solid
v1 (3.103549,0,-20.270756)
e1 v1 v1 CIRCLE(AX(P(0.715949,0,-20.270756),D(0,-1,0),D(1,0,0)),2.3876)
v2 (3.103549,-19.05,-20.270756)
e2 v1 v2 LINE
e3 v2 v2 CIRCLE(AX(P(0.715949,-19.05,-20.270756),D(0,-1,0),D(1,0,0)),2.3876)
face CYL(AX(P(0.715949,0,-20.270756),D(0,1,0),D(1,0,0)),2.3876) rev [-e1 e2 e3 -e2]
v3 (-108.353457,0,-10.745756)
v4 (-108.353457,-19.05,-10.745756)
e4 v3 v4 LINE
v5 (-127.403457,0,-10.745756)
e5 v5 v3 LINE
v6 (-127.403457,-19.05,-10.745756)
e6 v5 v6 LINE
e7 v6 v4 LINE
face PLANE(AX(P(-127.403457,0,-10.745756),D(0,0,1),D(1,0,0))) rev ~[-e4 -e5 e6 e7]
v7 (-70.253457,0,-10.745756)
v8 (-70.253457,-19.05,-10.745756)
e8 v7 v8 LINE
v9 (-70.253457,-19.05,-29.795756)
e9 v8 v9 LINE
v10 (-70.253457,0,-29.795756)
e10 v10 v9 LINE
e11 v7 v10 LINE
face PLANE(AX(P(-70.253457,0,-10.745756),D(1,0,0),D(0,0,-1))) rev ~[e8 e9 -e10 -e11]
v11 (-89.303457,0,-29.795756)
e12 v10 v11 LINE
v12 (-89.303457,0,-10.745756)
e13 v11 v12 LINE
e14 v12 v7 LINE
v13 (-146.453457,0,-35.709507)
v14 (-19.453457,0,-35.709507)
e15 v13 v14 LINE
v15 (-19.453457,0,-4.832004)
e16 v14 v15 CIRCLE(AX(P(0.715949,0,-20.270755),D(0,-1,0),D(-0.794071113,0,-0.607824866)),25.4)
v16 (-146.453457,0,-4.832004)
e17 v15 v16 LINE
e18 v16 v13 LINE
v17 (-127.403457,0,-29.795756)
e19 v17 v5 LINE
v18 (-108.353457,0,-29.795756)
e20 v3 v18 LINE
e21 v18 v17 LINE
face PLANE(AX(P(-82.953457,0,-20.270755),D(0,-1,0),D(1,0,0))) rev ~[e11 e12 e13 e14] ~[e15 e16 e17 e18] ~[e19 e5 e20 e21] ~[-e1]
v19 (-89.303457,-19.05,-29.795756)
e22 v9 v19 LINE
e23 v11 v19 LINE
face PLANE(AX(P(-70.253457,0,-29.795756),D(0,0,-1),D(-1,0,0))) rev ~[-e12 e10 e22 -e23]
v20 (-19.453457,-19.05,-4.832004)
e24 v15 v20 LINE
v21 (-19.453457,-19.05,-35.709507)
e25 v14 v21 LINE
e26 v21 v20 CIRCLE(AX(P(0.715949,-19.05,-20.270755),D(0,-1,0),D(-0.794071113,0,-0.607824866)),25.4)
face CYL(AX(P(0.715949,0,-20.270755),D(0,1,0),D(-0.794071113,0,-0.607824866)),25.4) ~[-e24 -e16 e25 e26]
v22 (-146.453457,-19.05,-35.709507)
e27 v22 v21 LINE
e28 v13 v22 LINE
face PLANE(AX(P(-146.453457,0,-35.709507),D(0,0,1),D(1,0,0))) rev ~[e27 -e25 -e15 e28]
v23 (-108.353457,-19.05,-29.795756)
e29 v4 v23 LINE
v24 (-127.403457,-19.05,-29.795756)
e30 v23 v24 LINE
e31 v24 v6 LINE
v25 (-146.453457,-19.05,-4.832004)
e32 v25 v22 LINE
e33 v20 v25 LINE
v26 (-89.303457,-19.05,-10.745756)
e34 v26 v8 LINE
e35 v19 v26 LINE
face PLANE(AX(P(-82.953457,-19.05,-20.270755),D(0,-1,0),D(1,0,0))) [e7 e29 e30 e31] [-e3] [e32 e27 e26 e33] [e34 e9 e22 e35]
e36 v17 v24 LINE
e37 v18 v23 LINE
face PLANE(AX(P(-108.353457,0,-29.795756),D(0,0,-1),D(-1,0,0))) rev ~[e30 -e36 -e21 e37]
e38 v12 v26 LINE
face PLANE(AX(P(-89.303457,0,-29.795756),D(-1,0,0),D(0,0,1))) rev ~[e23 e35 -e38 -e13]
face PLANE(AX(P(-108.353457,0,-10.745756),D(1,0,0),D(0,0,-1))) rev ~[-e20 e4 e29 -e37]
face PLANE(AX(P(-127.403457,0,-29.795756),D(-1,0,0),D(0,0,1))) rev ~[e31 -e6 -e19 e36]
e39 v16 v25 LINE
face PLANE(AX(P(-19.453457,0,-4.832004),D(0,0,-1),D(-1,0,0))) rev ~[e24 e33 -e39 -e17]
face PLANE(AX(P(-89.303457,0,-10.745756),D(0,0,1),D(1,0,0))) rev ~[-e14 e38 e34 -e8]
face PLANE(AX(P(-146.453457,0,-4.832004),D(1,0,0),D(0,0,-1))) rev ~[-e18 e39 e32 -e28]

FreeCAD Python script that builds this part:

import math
import FreeCAD as App
import Part
import Sketcher

V = App.Vector
Q = App.Units.Quantity


def add_polygon(sketch, points):
    """Adds a closed chain of lines whose ends are joined by coincident constraints."""
    first, n = sketch.GeometryCount, len(points)
    for a, b in zip(points, points[1:] + points[:1]):
        sketch.addGeometry(Part.LineSegment(App.Vector(*a, 0), App.Vector(*b, 0)), False)
    for i in range(n):
        sketch.addConstraint(Sketcher.Constraint("Coincident", first + i, 2, first + (i + 1) % n, 1))

doc = App.newDocument("Part")
body = doc.addObject("PartDesign::Body", "Body")

sketch1 = body.newObject("Sketcher::SketchObject", "Sketch")
sketch1.AttachmentSupport = (doc.getObject("XZ_Plane"), [""])
sketch1.MapMode = "FlatFace"
sketch1.addGeometry(Part.LineSegment(V(-19.453457, -4.832004, 0), V(-146.453457, -4.832004, 0)), False)
sketch1.addGeometry(Part.LineSegment(V(-146.453457, -4.832004, 0), V(-146.453457, -35.709507, 0)), False)
sketch1.addGeometry(Part.LineSegment(V(-146.453457, -35.709507, 0), V(-19.453457, -35.709507, 0)), False)
sketch1.addGeometry(Part.ArcOfCircle(Part.Circle(V(0.715949, -20.270755, 0), V(0, 0, 1), 25.4), math.radians(-142.567608), math.radians(142.567608)), False)
add_polygon(sketch1, [(-108.353457, -29.795756), (-127.403457, -29.795756), (-127.403457, -10.745756), (-108.353457, -10.745756)])
add_polygon(sketch1, [(-70.253457, -29.795756), (-89.303457, -29.795756), (-89.303457, -10.745756), (-70.253457, -10.745756)])
sketch1.addGeometry(Part.Circle(V(0.715949, -20.270756, 0), V(0, 0, 1), 2.3876), False)
sketch1.addConstraint(Sketcher.Constraint("Coincident", 0, 2, 1, 1))
sketch1.addConstraint(Sketcher.Constraint("Coincident", 1, 2, 2, 1))
sketch1.addConstraint(Sketcher.Constraint("Coincident", 2, 2, 3, 1))
sketch1.addConstraint(Sketcher.Constraint("Coincident", 3, 2, 0, 1))
sketch1.addConstraint(Sketcher.Constraint("Horizontal", 0))
sketch1.addConstraint(Sketcher.Constraint("Vertical", 1))
sketch1.addConstraint(Sketcher.Constraint("Horizontal", 2))
sketch1.addConstraint(Sketcher.Constraint("Horizontal", 4))
sketch1.addConstraint(Sketcher.Constraint("Vertical", 5))
sketch1.addConstraint(Sketcher.Constraint("Horizontal", 6))
sketch1.addConstraint(Sketcher.Constraint("Vertical", 7))
sketch1.addConstraint(Sketcher.Constraint("Horizontal", 8))
sketch1.addConstraint(Sketcher.Constraint("Vertical", 9))
sketch1.addConstraint(Sketcher.Constraint("Horizontal", 10))
sketch1.addConstraint(Sketcher.Constraint("Vertical", 11))
sketch1.addConstraint(Sketcher.Constraint("Coincident", 12, 3, 3, 3))
sketch1.addConstraint(Sketcher.Constraint("Horizontal", 7, 2, 8, 2))
sketch1.addConstraint(Sketcher.Constraint("Horizontal", 6, 2, 9, 2))
sketch1.addConstraint(Sketcher.Constraint("Vertical", 2, 2, 3, 2))
sketch1.addConstraint(Sketcher.Constraint("Equal", 6, 8))
sketch1.addConstraint(Sketcher.Constraint("Equal", 10, 5))
sketch1.addConstraint(Sketcher.Constraint("Radius", 3, Q("1 in")))
sketch1.addConstraint(Sketcher.Constraint("DistanceX", 0, 2, 0, 1, Q("5 in")))
sketch1.addConstraint(Sketcher.Constraint("Diameter", 12, Q("0.188 in")))
sketch1.addConstraint(Sketcher.Constraint("DistanceX", 10, 2, 3, 2, Q("2 in")))
sketch1.addConstraint(Sketcher.Constraint("DistanceX", 4, 2, 4, 1, Q("0.75 in")))
sketch1.addConstraint(Sketcher.Constraint("DistanceX", 0, 2, 6, 2, Q("1.5 in")))
sketch1.addConstraint(Sketcher.Constraint("DistanceY", 4, 2, 12, 3, Q("0.375 in")))
sketch1.addConstraint(Sketcher.Constraint("DistanceY", 1, 2, 1, 1, Q("30.877503 mm")))
sketch1.addConstraint(Sketcher.Constraint("DistanceX", -1, 1, 3, 3, Q("0.715949 mm")))
sketch1.addConstraint(Sketcher.Constraint("DistanceY", 3, 3, -1, 1, Q("20.270755 mm")))
pad1 = body.newObject("PartDesign::Pad", "Pad")
pad1.Profile = sketch1
pad1.Length = Q("0.75 in")

doc.recompute()
